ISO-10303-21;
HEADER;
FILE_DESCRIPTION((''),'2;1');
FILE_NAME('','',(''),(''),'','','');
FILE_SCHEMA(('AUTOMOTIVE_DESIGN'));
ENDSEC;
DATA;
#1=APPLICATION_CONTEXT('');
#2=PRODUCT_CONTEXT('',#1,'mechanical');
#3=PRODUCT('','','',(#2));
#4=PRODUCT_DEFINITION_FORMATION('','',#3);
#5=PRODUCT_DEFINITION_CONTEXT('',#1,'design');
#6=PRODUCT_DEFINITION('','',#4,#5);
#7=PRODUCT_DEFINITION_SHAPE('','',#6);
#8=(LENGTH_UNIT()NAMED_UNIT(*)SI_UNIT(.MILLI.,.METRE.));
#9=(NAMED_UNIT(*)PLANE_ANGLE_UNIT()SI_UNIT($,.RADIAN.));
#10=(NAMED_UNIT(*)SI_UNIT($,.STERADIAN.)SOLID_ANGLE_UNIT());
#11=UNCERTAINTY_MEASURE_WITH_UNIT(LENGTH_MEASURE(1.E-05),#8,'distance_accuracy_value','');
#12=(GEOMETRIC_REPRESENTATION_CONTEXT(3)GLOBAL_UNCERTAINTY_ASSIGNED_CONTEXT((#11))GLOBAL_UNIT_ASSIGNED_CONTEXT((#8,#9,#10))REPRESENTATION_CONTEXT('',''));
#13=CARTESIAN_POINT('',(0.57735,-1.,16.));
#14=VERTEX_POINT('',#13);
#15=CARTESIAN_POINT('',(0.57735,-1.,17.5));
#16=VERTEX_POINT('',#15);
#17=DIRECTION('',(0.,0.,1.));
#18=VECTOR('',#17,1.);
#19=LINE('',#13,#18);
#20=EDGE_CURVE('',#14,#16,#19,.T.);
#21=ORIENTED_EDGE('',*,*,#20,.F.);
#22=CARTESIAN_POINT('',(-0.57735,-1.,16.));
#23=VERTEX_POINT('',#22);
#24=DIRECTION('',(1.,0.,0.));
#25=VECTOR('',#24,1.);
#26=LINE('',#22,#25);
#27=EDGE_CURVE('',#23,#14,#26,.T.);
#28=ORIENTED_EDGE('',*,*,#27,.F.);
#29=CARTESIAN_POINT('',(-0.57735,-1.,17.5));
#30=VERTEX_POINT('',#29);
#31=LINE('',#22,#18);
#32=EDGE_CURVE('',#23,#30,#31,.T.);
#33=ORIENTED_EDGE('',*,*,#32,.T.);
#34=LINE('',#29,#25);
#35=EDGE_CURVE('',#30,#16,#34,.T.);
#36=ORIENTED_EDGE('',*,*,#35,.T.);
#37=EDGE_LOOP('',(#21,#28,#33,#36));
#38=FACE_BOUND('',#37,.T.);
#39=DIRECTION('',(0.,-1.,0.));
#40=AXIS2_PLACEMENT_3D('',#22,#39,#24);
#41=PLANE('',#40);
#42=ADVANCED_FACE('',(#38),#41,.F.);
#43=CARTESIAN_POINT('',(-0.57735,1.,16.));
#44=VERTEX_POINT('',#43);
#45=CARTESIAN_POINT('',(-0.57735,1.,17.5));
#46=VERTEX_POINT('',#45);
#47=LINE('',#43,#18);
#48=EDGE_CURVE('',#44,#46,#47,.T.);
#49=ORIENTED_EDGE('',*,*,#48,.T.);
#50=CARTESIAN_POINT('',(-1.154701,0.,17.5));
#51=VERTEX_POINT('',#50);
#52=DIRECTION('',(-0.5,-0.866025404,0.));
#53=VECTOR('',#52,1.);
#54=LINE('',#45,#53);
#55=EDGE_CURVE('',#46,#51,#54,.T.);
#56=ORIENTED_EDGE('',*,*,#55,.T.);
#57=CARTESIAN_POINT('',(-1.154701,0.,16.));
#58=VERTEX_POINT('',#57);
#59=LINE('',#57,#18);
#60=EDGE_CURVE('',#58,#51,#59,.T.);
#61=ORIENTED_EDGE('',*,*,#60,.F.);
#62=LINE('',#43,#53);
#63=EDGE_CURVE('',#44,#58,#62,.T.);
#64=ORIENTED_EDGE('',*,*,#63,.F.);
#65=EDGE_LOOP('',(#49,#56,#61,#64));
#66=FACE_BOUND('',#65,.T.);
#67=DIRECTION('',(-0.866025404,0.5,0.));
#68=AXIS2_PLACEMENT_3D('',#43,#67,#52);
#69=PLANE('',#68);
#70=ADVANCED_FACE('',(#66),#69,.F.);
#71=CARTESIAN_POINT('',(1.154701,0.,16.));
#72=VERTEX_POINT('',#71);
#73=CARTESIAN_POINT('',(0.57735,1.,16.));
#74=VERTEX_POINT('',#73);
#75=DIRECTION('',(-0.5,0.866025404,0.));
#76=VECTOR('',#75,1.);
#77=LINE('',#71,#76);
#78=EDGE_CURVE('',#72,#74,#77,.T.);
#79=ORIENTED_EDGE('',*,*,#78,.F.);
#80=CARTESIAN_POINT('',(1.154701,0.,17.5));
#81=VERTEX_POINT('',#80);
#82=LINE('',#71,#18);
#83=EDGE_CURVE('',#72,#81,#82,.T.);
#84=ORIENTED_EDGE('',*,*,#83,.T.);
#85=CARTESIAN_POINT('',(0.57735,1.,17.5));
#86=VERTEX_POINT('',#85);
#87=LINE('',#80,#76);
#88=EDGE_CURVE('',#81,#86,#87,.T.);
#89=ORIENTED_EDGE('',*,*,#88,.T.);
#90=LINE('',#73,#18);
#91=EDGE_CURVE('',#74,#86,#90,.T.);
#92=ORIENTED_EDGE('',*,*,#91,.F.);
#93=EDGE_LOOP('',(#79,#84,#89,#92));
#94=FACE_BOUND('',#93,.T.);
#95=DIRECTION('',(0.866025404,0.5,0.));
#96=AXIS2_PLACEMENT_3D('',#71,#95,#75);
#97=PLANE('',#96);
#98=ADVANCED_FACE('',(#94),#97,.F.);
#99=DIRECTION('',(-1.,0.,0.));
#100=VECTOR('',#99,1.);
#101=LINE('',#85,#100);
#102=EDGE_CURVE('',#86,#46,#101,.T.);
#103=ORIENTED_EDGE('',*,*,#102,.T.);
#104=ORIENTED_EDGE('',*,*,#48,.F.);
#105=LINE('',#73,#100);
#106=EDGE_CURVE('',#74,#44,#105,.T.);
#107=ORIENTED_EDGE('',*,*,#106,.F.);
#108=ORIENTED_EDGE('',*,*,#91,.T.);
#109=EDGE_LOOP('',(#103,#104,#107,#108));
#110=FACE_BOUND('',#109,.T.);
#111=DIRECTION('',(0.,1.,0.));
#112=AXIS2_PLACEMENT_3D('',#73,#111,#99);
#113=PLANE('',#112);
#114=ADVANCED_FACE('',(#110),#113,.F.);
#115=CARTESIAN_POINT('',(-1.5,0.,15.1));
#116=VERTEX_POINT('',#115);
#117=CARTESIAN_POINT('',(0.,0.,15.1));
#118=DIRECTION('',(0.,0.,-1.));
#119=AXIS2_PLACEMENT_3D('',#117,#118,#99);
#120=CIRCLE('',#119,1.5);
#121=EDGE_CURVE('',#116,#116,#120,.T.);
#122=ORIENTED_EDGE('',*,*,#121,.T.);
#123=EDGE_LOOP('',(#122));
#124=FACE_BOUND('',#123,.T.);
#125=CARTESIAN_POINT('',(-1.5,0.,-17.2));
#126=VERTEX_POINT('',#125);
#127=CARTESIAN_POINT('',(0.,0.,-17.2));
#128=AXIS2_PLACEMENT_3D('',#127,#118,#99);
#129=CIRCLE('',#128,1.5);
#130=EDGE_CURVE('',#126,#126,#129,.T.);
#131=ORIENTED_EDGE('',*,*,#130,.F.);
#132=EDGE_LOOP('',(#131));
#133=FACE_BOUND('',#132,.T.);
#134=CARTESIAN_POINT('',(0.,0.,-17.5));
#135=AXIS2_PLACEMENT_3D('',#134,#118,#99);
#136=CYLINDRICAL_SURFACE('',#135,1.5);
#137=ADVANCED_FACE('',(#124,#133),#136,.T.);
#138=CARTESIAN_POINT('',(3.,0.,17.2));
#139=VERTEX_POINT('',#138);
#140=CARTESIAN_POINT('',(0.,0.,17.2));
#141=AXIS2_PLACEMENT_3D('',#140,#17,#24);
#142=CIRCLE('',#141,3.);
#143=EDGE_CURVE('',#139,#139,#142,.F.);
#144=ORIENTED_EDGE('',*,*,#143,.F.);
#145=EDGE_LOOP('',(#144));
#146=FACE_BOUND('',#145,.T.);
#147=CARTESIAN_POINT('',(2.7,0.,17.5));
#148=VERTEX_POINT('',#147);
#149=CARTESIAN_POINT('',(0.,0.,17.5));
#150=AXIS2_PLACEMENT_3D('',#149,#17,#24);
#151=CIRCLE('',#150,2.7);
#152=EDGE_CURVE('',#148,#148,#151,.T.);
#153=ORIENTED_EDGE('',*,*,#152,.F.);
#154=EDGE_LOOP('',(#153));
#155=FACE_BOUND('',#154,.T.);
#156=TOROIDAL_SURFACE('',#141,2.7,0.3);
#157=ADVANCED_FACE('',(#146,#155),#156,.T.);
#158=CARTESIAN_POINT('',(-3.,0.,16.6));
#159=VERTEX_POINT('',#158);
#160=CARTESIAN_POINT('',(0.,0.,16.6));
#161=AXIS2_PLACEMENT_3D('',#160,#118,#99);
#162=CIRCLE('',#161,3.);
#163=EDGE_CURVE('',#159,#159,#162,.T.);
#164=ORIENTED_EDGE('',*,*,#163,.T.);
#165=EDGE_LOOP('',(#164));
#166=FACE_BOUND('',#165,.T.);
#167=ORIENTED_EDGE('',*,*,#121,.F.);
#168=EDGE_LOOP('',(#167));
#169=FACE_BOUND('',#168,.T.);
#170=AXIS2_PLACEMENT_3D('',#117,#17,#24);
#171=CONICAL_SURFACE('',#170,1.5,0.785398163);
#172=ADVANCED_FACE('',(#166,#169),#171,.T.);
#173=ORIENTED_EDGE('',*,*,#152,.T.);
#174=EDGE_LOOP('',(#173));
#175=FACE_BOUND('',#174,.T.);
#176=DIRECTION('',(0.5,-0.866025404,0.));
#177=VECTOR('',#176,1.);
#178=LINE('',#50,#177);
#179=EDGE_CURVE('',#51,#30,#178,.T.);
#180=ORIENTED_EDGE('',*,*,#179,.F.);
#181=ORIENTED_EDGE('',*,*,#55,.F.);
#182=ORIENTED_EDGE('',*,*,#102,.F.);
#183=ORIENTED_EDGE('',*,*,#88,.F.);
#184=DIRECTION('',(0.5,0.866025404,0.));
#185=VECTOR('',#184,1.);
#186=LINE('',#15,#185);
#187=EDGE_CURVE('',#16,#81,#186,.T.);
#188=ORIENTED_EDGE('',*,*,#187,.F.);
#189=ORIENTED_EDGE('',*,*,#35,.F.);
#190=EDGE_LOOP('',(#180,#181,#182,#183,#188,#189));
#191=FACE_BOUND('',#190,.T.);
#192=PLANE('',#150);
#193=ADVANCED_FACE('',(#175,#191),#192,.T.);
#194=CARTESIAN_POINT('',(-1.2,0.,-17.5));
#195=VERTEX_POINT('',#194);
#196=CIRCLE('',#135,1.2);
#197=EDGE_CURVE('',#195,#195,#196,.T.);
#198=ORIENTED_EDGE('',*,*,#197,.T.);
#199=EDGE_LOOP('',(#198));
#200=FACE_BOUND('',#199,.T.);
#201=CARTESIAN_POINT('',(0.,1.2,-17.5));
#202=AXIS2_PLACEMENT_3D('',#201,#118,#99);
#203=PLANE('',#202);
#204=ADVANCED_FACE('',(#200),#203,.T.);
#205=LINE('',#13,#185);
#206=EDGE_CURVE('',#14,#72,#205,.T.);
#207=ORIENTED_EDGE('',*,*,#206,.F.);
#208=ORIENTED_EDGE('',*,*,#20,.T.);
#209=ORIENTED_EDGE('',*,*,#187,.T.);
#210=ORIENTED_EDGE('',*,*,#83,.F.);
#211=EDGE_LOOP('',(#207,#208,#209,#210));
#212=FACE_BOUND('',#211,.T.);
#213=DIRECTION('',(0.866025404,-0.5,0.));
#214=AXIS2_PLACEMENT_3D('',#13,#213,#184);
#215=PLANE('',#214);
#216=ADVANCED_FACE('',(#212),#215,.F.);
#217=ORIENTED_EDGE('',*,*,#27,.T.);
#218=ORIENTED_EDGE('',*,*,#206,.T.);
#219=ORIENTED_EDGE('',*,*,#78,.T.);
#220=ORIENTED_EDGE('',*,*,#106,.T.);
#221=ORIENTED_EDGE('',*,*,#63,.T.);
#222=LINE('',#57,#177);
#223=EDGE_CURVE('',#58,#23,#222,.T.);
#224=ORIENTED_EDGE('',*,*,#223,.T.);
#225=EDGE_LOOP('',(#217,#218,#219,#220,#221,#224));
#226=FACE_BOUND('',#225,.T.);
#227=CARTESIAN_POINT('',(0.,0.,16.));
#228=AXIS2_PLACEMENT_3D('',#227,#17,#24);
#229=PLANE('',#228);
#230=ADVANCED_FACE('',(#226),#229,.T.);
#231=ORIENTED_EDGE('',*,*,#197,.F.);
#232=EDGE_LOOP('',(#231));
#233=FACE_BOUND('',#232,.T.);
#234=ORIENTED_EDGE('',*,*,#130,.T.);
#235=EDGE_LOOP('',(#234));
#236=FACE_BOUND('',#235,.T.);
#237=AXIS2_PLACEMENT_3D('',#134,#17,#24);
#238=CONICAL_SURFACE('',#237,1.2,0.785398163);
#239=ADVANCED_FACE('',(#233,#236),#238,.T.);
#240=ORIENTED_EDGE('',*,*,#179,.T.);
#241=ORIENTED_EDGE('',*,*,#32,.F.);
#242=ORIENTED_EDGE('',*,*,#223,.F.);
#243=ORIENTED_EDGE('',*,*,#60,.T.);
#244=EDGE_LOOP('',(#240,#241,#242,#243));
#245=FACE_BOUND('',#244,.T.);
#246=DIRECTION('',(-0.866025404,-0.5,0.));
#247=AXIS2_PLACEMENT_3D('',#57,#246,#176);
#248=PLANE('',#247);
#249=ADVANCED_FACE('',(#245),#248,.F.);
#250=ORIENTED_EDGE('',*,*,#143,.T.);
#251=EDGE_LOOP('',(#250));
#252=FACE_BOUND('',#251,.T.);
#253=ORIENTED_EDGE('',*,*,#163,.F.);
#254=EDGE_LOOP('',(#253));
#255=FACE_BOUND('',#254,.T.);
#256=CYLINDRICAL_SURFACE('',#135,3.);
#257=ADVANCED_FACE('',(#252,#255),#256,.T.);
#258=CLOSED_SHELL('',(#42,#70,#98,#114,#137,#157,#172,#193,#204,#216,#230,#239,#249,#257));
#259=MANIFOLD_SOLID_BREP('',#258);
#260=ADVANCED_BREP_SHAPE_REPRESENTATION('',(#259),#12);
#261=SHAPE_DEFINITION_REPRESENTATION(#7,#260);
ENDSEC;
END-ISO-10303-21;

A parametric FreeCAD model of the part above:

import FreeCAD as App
import Part
import Sketcher

V = App.Vector
Q = App.Units.Quantity


def edges_at(feature, points):
    """Names of the edges that pass closest to the given points."""
    edges = feature.Shape.Edges
    near = lambda p: min(range(len(edges)), key=lambda i: edges[i].distToShape(Part.Vertex(*p))[0])
    return sorted({f"Edge{near(p) + 1}" for p in points})


def add_polygon(sketch, points):
    """Adds a closed chain of lines whose ends are joined by coincident constraints."""
    first, n = sketch.GeometryCount, len(points)
    for a, b in zip(points, points[1:] + points[:1]):
        sketch.addGeometry(Part.LineSegment(App.Vector(*a, 0), App.Vector(*b, 0)), False)
    for i in range(n):
        sketch.addConstraint(Sketcher.Constraint("Coincident", first + i, 2, first + (i + 1) % n, 1))

doc = App.newDocument("Part")
body = doc.addObject("PartDesign::Body", "Body")

# Sketch on YZ plane
sketch1 = body.newObject("Sketcher::SketchObject", "Sketch")
sketch1.AttachmentSupport = (doc.getObject("YZ_Plane"), [""])
sketch1.MapMode = "FlatFace"
add_polygon(sketch1, [(3, 17.5), (0, 17.5), (0, -17.5), (1.2, -17.5), (1.5, -17.2), (1.5, 15.1), (3, 16.6)])  # lines 0-6
sketch1.addConstraint([
    Sketcher.Constraint("Horizontal", 0),
    Sketcher.Constraint("Vertical", 1),
    Sketcher.Constraint("Horizontal", 2),
    Sketcher.Constraint("Vertical", 4),
    Sketcher.Constraint("Vertical", 6),
    Sketcher.Constraint("Symmetric", 0, 2, 1, 2, -1, 1),
    Sketcher.Constraint("Parallel", 3, 5),
    Sketcher.Constraint("DistanceX", 0, 2, 0, 1, Q("3 mm")),
    Sketcher.Constraint("DistanceY", 1, 2, 1, 1, Q("35 mm")),
    Sketcher.Constraint("Angle", 3, Q("45 deg")),
    Sketcher.Constraint("DistanceX", 2, 1, 2, 2, Q("1.2 mm")),
    Sketcher.Constraint("DistanceY", 4, 1, 4, 2, Q("32.3 mm")),
    Sketcher.Constraint("DistanceX", -1, 1, 3, 2, Q("1.5 mm")),
])
revolution = body.newObject("PartDesign::Revolution", "Revolution")
revolution.Profile = sketch1
revolution.ReferenceAxis = (sketch1, ["V_Axis"])
revolution.Angle = 360

# Sketch on XY plane
sketch2 = body.newObject("Sketcher::SketchObject", "Sketch001")
sketch2.AttachmentSupport = (doc.getObject("XY_Plane"), [""])
sketch2.MapMode = "FlatFace"
sketch2.AttachmentOffset = App.Placement(V(0, 0, 17.5), App.Rotation())
add_polygon(sketch2, [(1.154701, 0), (0.57735, 1), (-0.57735, 1), (-1.154701, 0), (-0.57735, -1), (0.57735, -1)])  # lines 0-5
sketch2.addConstraint([
    Sketcher.Constraint("Horizontal", 1),
    Sketcher.Constraint("Horizontal", 4),
    Sketcher.Constraint("Symmetric", 0, 2, 3, 2, -1, 1),
    Sketcher.Constraint("Symmetric", 2, 2, 5, 2, -1, 1),
    Sketcher.Constraint("PointOnObject", 2, 2, -1),
    Sketcher.Constraint("Parallel", 2, 5),
    Sketcher.Constraint("Vertical", 1, 2, 3, 2),
    Sketcher.Constraint("Angle", 0, Q("120 deg")),
    Sketcher.Constraint("DistanceY", -1, 1, 0, 2, Q("1 mm")),
    Sketcher.Constraint("DistanceX", 1, 2, 1, 1, Q("1.154701 mm")),
])
pocket1 = body.newObject("PartDesign::Pocket", "Pocket")
pocket1.Profile = sketch2
pocket1.Length = 1.5
doc.recompute()

fillet = body.newObject("PartDesign::Fillet", "Fillet")
fillet.Base = (pocket1, edges_at(pocket1, [(3, 0, 17.5)]))
fillet.Radius = 0.3

doc.recompute()
